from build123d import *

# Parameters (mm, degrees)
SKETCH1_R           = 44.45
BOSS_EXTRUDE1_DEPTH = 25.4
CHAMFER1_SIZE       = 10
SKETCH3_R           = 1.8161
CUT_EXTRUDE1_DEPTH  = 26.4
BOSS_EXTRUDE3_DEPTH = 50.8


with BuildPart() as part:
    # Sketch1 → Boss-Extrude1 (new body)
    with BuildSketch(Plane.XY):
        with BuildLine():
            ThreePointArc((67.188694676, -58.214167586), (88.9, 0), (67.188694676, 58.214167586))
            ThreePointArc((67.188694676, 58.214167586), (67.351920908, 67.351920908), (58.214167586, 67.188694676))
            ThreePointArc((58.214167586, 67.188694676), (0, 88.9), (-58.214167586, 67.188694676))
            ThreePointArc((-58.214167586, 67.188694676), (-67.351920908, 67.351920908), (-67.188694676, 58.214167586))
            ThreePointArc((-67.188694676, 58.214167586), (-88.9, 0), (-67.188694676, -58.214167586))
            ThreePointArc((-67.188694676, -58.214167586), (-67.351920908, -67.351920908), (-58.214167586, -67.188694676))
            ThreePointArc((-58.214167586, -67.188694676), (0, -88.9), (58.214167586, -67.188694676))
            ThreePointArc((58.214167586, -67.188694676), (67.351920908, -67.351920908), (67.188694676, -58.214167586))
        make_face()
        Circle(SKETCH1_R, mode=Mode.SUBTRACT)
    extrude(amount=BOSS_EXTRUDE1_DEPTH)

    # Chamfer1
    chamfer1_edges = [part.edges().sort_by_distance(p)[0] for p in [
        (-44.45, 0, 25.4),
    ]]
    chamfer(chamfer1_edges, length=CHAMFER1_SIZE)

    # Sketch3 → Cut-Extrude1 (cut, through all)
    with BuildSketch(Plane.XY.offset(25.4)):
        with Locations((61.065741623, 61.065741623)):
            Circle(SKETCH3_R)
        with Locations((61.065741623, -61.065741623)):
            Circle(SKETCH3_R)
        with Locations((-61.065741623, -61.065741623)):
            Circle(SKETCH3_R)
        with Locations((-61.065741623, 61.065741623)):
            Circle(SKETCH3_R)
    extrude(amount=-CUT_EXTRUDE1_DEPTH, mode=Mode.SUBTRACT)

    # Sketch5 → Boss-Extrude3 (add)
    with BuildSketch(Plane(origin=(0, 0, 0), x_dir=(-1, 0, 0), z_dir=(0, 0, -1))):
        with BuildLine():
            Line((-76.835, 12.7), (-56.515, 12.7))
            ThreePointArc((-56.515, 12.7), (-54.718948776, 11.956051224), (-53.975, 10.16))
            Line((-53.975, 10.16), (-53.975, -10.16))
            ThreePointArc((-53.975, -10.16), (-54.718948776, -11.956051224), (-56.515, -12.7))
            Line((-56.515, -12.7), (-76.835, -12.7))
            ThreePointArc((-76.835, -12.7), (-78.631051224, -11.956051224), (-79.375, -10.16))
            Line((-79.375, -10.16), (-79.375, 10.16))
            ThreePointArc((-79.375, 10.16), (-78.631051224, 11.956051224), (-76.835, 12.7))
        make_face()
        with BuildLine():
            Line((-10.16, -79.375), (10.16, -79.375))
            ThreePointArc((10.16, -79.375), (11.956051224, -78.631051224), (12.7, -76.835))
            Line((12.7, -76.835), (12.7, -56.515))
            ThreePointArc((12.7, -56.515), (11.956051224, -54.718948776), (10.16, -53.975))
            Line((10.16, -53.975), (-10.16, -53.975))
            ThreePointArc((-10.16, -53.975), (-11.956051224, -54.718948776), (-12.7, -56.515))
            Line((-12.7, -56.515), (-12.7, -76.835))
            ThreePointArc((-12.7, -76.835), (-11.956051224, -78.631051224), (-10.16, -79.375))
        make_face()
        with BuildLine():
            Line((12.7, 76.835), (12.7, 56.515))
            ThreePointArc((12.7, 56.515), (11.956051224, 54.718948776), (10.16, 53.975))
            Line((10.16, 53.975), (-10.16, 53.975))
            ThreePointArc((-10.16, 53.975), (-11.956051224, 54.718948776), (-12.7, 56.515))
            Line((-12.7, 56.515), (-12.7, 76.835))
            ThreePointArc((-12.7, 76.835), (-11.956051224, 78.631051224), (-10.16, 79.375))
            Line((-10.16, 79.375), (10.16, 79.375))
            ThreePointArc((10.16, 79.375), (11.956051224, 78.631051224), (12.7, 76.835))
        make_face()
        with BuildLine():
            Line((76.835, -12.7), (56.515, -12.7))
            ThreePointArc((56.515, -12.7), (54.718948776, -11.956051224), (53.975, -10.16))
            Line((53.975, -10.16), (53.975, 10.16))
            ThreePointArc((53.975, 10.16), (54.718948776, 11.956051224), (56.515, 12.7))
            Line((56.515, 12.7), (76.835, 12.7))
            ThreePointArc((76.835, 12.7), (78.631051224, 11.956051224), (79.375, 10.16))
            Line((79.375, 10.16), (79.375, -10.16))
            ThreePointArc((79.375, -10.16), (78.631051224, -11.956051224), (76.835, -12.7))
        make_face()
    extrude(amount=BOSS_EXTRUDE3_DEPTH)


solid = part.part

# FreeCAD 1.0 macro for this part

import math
import FreeCAD as App
import Part
import Sketcher

V = App.Vector
Q = App.Units.Quantity


def edges_at(feature, points):
    """Names of the edges that pass closest to the given points."""
    edges = feature.Shape.Edges
    near = lambda p: min(range(len(edges)), key=lambda i: edges[i].distToShape(Part.Vertex(*p))[0])
    return sorted({f"Edge{near(p) + 1}" for p in points})

doc = App.newDocument("Part")
body = doc.addObject("PartDesign::Body", "Body")

# Sketch on XY plane
sketch1 = body.newObject("Sketcher::SketchObject", "Sketch")
sketch1.AttachmentSupport = (doc.getObject("XY_Plane"), [""])
sketch1.MapMode = "FlatFace"
sketch1.addGeometry([
    Part.ArcOfCircle(Part.Circle(V(0, 0, 0), V(0, 0, 1), 89), math.radians(-41), math.radians(41)),  # 0
    Part.ArcOfCircle(Part.Circle(V(63, 63, 0), V(0, 0, 1), 6), math.radians(-47), math.radians(137)),  # 1
    Part.ArcOfCircle(Part.Circle(V(0, 0, 0), V(0, 0, 1), 89), math.radians(49), math.radians(131)),  # 2
    Part.ArcOfCircle(Part.Circle(V(-63, 63, 0), V(0, 0, 1), 6), math.radians(43), math.radians(227)),  # 3
    Part.ArcOfCircle(Part.Circle(V(0, 0, 0), V(0, 0, 1), 89), math.radians(139), math.radians(221)),  # 4
    Part.ArcOfCircle(Part.Circle(V(-63, -63, 0), V(0, 0, 1), 6), math.radians(133), math.radians(317)),  # 5
    Part.ArcOfCircle(Part.Circle(V(0, 0, 0), V(0, 0, 1), 89), math.radians(-131), math.radians(-49)),  # 6
    Part.ArcOfCircle(Part.Circle(V(63, -63, 0), V(0, 0, 1), 6), math.radians(-137), math.radians(47)),  # 7
    Part.Circle(V(0, 0, 0), V(0, 0, 1), 44),  # 8
], False)
sketch1.addConstraint([
    Sketcher.Constraint("Coincident", 0, 2, 1, 1),
    Sketcher.Constraint("Coincident", 1, 2, 2, 1),
    Sketcher.Constraint("Coincident", 2, 2, 3, 1),
    Sketcher.Constraint("Coincident", 3, 2, 4, 1),
    Sketcher.Constraint("Coincident", 4, 2, 5, 1),
    Sketcher.Constraint("Coincident", 5, 2, 6, 1),
    Sketcher.Constraint("Coincident", 6, 2, 7, 1),
    Sketcher.Constraint("Coincident", 7, 2, 0, 1),
    Sketcher.Constraint("Coincident", 0, 3, -1, 1),
    Sketcher.Constraint("Coincident", 2, 3, -1, 1),
    Sketcher.Constraint("Coincident", 4, 3, -1, 1),
    Sketcher.Constraint("Coincident", 6, 3, -1, 1),
    Sketcher.Constraint("Coincident", 8, 3, -1, 1),
    Sketcher.Constraint("Equal", 0, 2),
    Sketcher.Constraint("Equal", 1, 3),
    Sketcher.Constraint("Equal", 2, 4),
    Sketcher.Constraint("Equal", 3, 5),
    Sketcher.Constraint("Equal", 4, 6),
    Sketcher.Constraint("Equal", 5, 7),
    Sketcher.Constraint("Symmetric", 1, 3, 5, 3, -1, 1),
    Sketcher.Constraint("Symmetric", 3, 3, 7, 3, -1, 1),
    Sketcher.Constraint("Symmetric", 1, 3, 3, 3, -2),
    Sketcher.Constraint("Diameter", 8, Q("3.5 in")),
    Sketcher.Constraint("Radius", 0, Q("3.5 in")),
    Sketcher.Constraint("Radius", 1, Q("0.25 in")),
    Sketcher.Constraint("DistanceX", 1, 3, 0, 2, 4.326902),
    Sketcher.Constraint("DistanceY", 1, 3, 1, 2, 4.326902),
])
pad1 = body.newObject("PartDesign::Pad", "Pad")
pad1.Profile = sketch1
pad1.Length = Q("1 in")
doc.recompute()

chamfer = body.newObject("PartDesign::Chamfer", "Chamfer")
chamfer.Base = (pad1, edges_at(pad1, [(-44.45, 0, 25.4)]))
chamfer.Size = 10

# Sketch on XY plane
sketch2 = body.newObject("Sketcher::SketchObject", "Sketch001")
sketch2.AttachmentSupport = (doc.getObject("XY_Plane"), [""])
sketch2.MapMode = "FlatFace"
sketch2.AttachmentOffset = App.Placement(V(0, 0, 1 * 25.4), App.Rotation())
sketch2.addGeometry([
    Part.Circle(V(61.1, 61.1, 0), V(0, 0, 1), 1.8),
    Part.Circle(V(61.1, -61.1, 0), V(0, 0, 1), 1.8),
    Part.Circle(V(-61.1, -61.1, 0), V(0, 0, 1), 1.8),
    Part.Circle(V(-61.1, 61.1, 0), V(0, 0, 1), 1.8),
], False)
sketch2.addConstraint([
    Sketcher.Constraint("Equal", 0, 1),
    Sketcher.Constraint("Equal", 1, 2),
    Sketcher.Constraint("Equal", 2, 3),
    Sketcher.Constraint("Symmetric", 0, 3, 2, 3, -1, 1),
    Sketcher.Constraint("Symmetric", 1, 3, 3, 3, -1, 1),
    Sketcher.Constraint("Symmetric", 1, 3, 2, 3, -2),
    Sketcher.Constraint("Diameter", 0, Q("0.143 in")),
    Sketcher.Constraint("DistanceX", -1, 1, 0, 3, 61.065742),
    Sketcher.Constraint("DistanceY", -1, 1, 0, 3, 61.065742),
])
pocket1 = body.newObject("PartDesign::Pocket", "Pocket")
pocket1.Profile = sketch2
pocket1.Type = "ThroughAll"

# Sketch on XY plane
sketch3 = body.newObject("Sketcher::SketchObject", "Sketch002")
sketch3.AttachmentSupport = (doc.getObject("XY_Plane"), [""])
sketch3.MapMode = "FlatFace"
sketch3.addGeometry([
    Part.LineSegment(V(56.5, 12.7, 0), V(76.8, 12.7, 0)),  # 0
    Part.ArcOfCircle(Part.Circle(V(76.8, 10.2, 0), V(0, 0, 1), 2.5), math.radians(0), math.radians(90)),  # 1
    Part.LineSegment(V(79.4, 10.2, 0), V(79.4, -10.2, 0)),  # 2
    Part.ArcOfCircle(Part.Circle(V(76.8, -10.2, 0), V(0, 0, 1), 2.5), math.radians(-90), math.radians(0)),  # 3
    Part.LineSegment(V(76.8, -12.7, 0), V(56.5, -12.7, 0)),  # 4
    Part.ArcOfCircle(Part.Circle(V(56.5, -10.2, 0), V(0, 0, 1), 2.5), math.radians(-180), math.radians(-90)),  # 5
    Part.LineSegment(V(54, -10.2, 0), V(54, 10.2, 0)),  # 6
    Part.ArcOfCircle(Part.Circle(V(56.5, 10.2, 0), V(0, 0, 1), 2.5), math.radians(90), math.radians(180)),  # 7
    Part.LineSegment(V(10.2, -79.4, 0), V(-10.2, -79.4, 0)),  # 8
    Part.ArcOfCircle(Part.Circle(V(-10.2, -76.8, 0), V(0, 0, 1), 2.5), math.radians(-180), math.radians(-90)),  # 9
    Part.LineSegment(V(-12.7, -76.8, 0), V(-12.7, -56.5, 0)),  # 10
    Part.ArcOfCircle(Part.Circle(V(-10.2, -56.5, 0), V(0, 0, 1), 2.5), math.radians(90), math.radians(180)),  # 11
    Part.LineSegment(V(-10.2, -54, 0), V(10.2, -54, 0)),  # 12
    Part.ArcOfCircle(Part.Circle(V(10.2, -56.5, 0), V(0, 0, 1), 2.5), math.radians(0), math.radians(90)),  # 13
    Part.LineSegment(V(12.7, -56.5, 0), V(12.7, -76.8, 0)),  # 14
    Part.ArcOfCircle(Part.Circle(V(10.2, -76.8, 0), V(0, 0, 1), 2.5), math.radians(-90), math.radians(0)),  # 15
    Part.LineSegment(V(-12.7, 56.5, 0), V(-12.7, 76.8, 0)),  # 16
    Part.ArcOfCircle(Part.Circle(V(-10.2, 76.8, 0), V(0, 0, 1), 2.5), math.radians(90), math.radians(180)),  # 17
    Part.LineSegment(V(-10.2, 79.4, 0), V(10.2, 79.4, 0)),  # 18
    Part.ArcOfCircle(Part.Circle(V(10.2, 76.8, 0), V(0, 0, 1), 2.5), math.radians(0), math.radians(90)),  # 19
    Part.LineSegment(V(12.7, 76.8, 0), V(12.7, 56.5, 0)),  # 20
    Part.ArcOfCircle(Part.Circle(V(10.2, 56.5, 0), V(0, 0, 1), 2.5), math.radians(-90), math.radians(0)),  # 21
    Part.LineSegment(V(10.2, 54, 0), V(-10.2, 54, 0)),  # 22
    Part.ArcOfCircle(Part.Circle(V(-10.2, 56.5, 0), V(0, 0, 1), 2.5), math.radians(-180), math.radians(-90)),  # 23
    Part.LineSegment(V(-56.5, -12.7, 0), V(-76.8, -12.7, 0)),  # 24
    Part.ArcOfCircle(Part.Circle(V(-76.8, -10.2, 0), V(0, 0, 1), 2.5), math.radians(-180), math.radians(-90)),  # 25
    Part.LineSegment(V(-79.4, -10.2, 0), V(-79.4, 10.2, 0)),  # 26
    Part.ArcOfCircle(Part.Circle(V(-76.8, 10.2, 0), V(0, 0, 1), 2.5), math.radians(90), math.radians(180)),  # 27
    Part.LineSegment(V(-76.8, 12.7, 0), V(-56.5, 12.7, 0)),  # 28
    Part.ArcOfCircle(Part.Circle(V(-56.5, 10.2, 0), V(0, 0, 1), 2.5), math.radians(0), math.radians(90)),  # 29
    Part.LineSegment(V(-54, 10.2, 0), V(-54, -10.2, 0)),  # 30
    Part.ArcOfCircle(Part.Circle(V(-56.5, -10.2, 0), V(0, 0, 1), 2.5), math.radians(-90), math.radians(0)),  # 31
], False)
sketch3.addConstraint([
    Sketcher.Constraint("Tangent", 0, 2, 1, 2),
    Sketcher.Constraint("Tangent", 1, 1, 2, 1),
    Sketcher.Constraint("Tangent", 2, 2, 3, 2),
    Sketcher.Constraint("Tangent", 3, 1, 4, 1),
    Sketcher.Constraint("Tangent", 4, 2, 5, 2),
    Sketcher.Constraint("Tangent", 5, 1, 6, 1),
    Sketcher.Constraint("Tangent", 6, 2, 7, 2),
    Sketcher.Constraint("Tangent", 7, 1, 0, 1),
    Sketcher.Constraint("Tangent", 8, 2, 9, 2),
    Sketcher.Constraint("Tangent", 9, 1, 10, 1),
    Sketcher.Constraint("Tangent", 10, 2, 11, 2),
    Sketcher.Constraint("Tangent", 11, 1, 12, 1),
    Sketcher.Constraint("Tangent", 12, 2, 13, 2),
    Sketcher.Constraint("Tangent", 13, 1, 14, 1),
    Sketcher.Constraint("Tangent", 14, 2, 15, 2),
    Sketcher.Constraint("Tangent", 15, 1, 8, 1),
    Sketcher.Constraint("Tangent", 16, 2, 17, 2),
    Sketcher.Constraint("Tangent", 17, 1, 18, 1),
    Sketcher.Constraint("Tangent", 18, 2, 19, 2),
    Sketcher.Constraint("Tangent", 19, 1, 20, 1),
    Sketcher.Constraint("Tangent", 20, 2, 21, 2),
    Sketcher.Constraint("Tangent", 21, 1, 22, 1),
    Sketcher.Constraint("Tangent", 22, 2, 23, 2),
    Sketcher.Constraint("Tangent", 23, 1, 16, 1),
    Sketcher.Constraint("Tangent", 24, 2, 25, 2),
    Sketcher.Constraint("Tangent", 25, 1, 26, 1),
    Sketcher.Constraint("Tangent", 26, 2, 27, 2),
    Sketcher.Constraint("Tangent", 27, 1, 28, 1),
    Sketcher.Constraint("Tangent", 28, 2, 29, 2),
    Sketcher.Constraint("Tangent", 29, 1, 30, 1),
    Sketcher.Constraint("Tangent", 30, 2, 31, 2),
    Sketcher.Constraint("Tangent", 31, 1, 24, 1),
    Sketcher.Constraint("Horizontal", 0),
    Sketcher.Constraint("Vertical", 2),
    Sketcher.Constraint("Horizontal", 4),
    Sketcher.Constraint("Vertical", 6),
    Sketcher.Constraint("Horizontal", 8),
    Sketcher.Constraint("Vertical", 10),
    Sketcher.Constraint("Horizontal", 12),
    Sketcher.Constraint("Vertical", 14),
    Sketcher.Constraint("Vertical", 16),
    Sketcher.Constraint("Horizontal", 18),
    Sketcher.Constraint("Vertical", 20),
    Sketcher.Constraint("Horizontal", 22),
    Sketcher.Constraint("Horizontal", 24),
    Sketcher.Constraint("Vertical", 26),
    Sketcher.Constraint("Horizontal", 28),
    Sketcher.Constraint("Vertical", 30),
    Sketcher.Constraint("Equal", 1, 3),
    Sketcher.Constraint("Equal", 3, 5),
    Sketcher.Constraint("Equal", 5, 7),
    Sketcher.Constraint("Equal", 7, 9),
    Sketcher.Constraint("Equal", 9, 11),
    Sketcher.Constraint("Equal", 11, 13),
    Sketcher.Constraint("Equal", 13, 15),
    Sketcher.Constraint("Equal", 15, 17),
    Sketcher.Constraint("Equal", 17, 19),
    Sketcher.Constraint("Equal", 19, 21),
    Sketcher.Constraint("Equal", 21, 23),
    Sketcher.Constraint("Equal", 23, 25),
    Sketcher.Constraint("Equal", 25, 27),
    Sketcher.Constraint("Equal", 27, 29),
    Sketcher.Constraint("Equal", 29, 31),
    Sketcher.Constraint("Symmetric", 15, 3, 17, 3, -1, 1),
    Sketcher.Constraint("Symmetric", 11, 3, 21, 3, -1, 1),
    Sketcher.Constraint("Symmetric", 1, 3, 25, 3, -1, 1),
    Sketcher.Constraint("Symmetric", 5, 3, 29, 3, -1, 1),
    Sketcher.Constraint("Horizontal", 5, 3, 25, 3),
    Sketcher.Constraint("Vertical", 11, 3, 17, 3),
    Sketcher.Constraint("Equal", 4, 8),
    Sketcher.Constraint("Equal", 28, 2),
    Sketcher.Constraint("Equal", 6, 10),
    Sketcher.Constraint("Radius", 1, Q("0.1 in")),
    Sketcher.Constraint("DistanceX", 0, 1, 0, 2, Q("0.8 in")),
    Sketcher.Constraint("DistanceY", 11, 3, 17, 3, Q("5.25 in")),
    Sketcher.Constraint("DistanceX", -1, 1, 1, 3, Q("3.025 in")),
])
pad2 = body.newObject("PartDesign::Pad", "Pad001")
pad2.Profile = sketch3
pad2.Length = Q("2 in")
pad2.Reversed = True

doc.recompute()
